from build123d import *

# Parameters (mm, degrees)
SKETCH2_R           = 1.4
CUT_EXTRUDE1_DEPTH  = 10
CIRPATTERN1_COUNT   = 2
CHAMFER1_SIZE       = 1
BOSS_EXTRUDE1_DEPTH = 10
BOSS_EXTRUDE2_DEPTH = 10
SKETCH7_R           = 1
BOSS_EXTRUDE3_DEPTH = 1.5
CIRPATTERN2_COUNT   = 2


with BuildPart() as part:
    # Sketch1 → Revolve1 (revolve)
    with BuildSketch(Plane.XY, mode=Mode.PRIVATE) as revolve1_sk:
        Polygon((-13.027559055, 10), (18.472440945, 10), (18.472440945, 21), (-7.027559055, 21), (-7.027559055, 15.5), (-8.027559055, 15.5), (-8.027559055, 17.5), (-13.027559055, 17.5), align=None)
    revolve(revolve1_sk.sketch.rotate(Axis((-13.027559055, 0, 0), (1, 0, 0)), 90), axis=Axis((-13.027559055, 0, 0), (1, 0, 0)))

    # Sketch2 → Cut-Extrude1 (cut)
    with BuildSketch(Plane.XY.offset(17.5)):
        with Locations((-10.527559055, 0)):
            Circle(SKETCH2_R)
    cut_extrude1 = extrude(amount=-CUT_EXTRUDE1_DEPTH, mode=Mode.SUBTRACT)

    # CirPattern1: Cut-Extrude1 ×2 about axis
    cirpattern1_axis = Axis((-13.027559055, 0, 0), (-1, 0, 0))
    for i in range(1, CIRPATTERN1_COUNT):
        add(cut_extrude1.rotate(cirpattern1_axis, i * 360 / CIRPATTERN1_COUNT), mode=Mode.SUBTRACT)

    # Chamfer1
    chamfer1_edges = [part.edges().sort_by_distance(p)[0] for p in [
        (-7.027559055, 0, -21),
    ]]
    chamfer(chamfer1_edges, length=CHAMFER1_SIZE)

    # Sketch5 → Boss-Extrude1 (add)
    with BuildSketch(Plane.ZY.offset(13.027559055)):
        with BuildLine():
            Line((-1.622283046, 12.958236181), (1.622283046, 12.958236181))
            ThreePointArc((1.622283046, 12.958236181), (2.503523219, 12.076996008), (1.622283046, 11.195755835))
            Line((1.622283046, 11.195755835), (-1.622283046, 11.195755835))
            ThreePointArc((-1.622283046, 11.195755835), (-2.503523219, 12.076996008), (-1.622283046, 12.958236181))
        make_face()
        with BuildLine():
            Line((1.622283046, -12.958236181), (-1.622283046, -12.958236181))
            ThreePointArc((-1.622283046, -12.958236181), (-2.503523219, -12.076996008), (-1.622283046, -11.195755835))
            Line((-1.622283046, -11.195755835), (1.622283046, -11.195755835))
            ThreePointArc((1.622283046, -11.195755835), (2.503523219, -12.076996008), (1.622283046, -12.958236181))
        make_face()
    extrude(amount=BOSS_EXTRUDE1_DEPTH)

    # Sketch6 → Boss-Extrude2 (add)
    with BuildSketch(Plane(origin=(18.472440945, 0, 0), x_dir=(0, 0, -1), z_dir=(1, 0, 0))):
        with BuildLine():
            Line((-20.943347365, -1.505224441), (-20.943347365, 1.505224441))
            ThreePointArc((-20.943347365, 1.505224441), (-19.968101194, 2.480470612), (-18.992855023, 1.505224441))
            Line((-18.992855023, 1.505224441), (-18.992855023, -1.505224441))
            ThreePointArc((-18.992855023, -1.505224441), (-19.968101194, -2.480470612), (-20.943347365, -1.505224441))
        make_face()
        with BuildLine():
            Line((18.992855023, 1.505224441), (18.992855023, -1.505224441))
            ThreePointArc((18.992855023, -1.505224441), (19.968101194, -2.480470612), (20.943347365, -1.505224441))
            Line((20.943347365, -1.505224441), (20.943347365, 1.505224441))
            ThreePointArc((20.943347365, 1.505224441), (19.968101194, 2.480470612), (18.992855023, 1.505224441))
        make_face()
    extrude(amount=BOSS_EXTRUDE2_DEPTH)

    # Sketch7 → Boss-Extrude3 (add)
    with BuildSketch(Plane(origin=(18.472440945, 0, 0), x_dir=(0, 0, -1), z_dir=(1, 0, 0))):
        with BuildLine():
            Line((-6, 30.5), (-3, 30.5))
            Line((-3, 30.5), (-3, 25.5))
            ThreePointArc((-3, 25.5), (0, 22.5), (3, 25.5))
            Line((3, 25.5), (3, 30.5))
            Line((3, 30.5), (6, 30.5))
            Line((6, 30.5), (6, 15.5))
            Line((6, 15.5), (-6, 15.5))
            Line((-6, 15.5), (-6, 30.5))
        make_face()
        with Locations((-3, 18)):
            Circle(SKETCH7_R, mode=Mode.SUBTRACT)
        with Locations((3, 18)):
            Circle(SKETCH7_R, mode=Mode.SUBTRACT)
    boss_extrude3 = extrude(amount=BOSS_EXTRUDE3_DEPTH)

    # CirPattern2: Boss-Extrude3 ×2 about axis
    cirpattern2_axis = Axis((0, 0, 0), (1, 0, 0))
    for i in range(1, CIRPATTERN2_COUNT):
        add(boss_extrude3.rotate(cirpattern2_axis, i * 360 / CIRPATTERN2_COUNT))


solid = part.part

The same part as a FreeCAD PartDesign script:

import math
import FreeCAD as App
import Part
import Sketcher
from FreeCAD import Vector


def edges_at(feature, points):
    """Names of the edges that pass closest to the given points."""
    edges = feature.Shape.Edges
    near = lambda p: min(range(len(edges)), key=lambda i: edges[i].distToShape(Part.Vertex(*p))[0])
    return sorted({f"Edge{near(p) + 1}" for p in points})

doc = App.newDocument("Part")
body = doc.addObject("PartDesign::Body", "Body")

# Sketch on XY plane
sketch1 = doc.addObject("Sketcher::SketchObject", "Sketch")
body.addObject(sketch1)
sketch1.AttachmentSupport = (doc.XY_Plane, [""])
sketch1.MapMode = "FlatFace"
sketch1.addGeometry(Part.LineSegment(Vector(-13.027559, 10, 0), Vector(18.472441, 10, 0)), False)
sketch1.addGeometry(Part.LineSegment(Vector(18.472441, 10, 0), Vector(18.472441, 21, 0)), False)
sketch1.addGeometry(Part.LineSegment(Vector(18.472441, 21, 0), Vector(-7.027559, 21, 0)), False)
sketch1.addGeometry(Part.LineSegment(Vector(-7.027559, 21, 0), Vector(-7.027559, 15.5, 0)), False)
sketch1.addGeometry(Part.LineSegment(Vector(-7.027559, 15.5, 0), Vector(-8.027559, 15.5, 0)), False)
sketch1.addGeometry(Part.LineSegment(Vector(-8.027559, 15.5, 0), Vector(-8.027559, 17.5, 0)), False)
sketch1.addGeometry(Part.LineSegment(Vector(-8.027559, 17.5, 0), Vector(-13.027559, 17.5, 0)), False)
sketch1.addGeometry(Part.LineSegment(Vector(-13.027559, 17.5, 0), Vector(-13.027559, 10, 0)), False)
sketch1.addConstraint(Sketcher.Constraint("Coincident", 0, 2, 1, 1))
sketch1.addConstraint(Sketcher.Constraint("Coincident", 1, 2, 2, 1))
sketch1.addConstraint(Sketcher.Constraint("Coincident", 2, 2, 3, 1))
sketch1.addConstraint(Sketcher.Constraint("Coincident", 3, 2, 4, 1))
sketch1.addConstraint(Sketcher.Constraint("Coincident", 4, 2, 5, 1))
sketch1.addConstraint(Sketcher.Constraint("Coincident", 5, 2, 6, 1))
sketch1.addConstraint(Sketcher.Constraint("Coincident", 6, 2, 7, 1))
sketch1.addConstraint(Sketcher.Constraint("Coincident", 7, 2, 0, 1))
sketch1.addConstraint(Sketcher.Constraint("Horizontal", 0))
sketch1.addConstraint(Sketcher.Constraint("Vertical", 1))
sketch1.addConstraint(Sketcher.Constraint("Horizontal", 2))
sketch1.addConstraint(Sketcher.Constraint("Vertical", 3))
sketch1.addConstraint(Sketcher.Constraint("Horizontal", 4))
sketch1.addConstraint(Sketcher.Constraint("Vertical", 5))
sketch1.addConstraint(Sketcher.Constraint("Horizontal", 6))
sketch1.addConstraint(Sketcher.Constraint("Vertical", 7))
sketch1.addConstraint(Sketcher.Constraint("DistanceX", 4, 2, 4, 1, 1.0))
sketch1.addConstraint(Sketcher.Constraint("DistanceX", 6, 2, 6, 1, 5.0))
sketch1.addConstraint(Sketcher.Constraint("DistanceY", 1, 1, 1, 2, 11.0))
sketch1.addConstraint(Sketcher.Constraint("DistanceY", 5, 1, 5, 2, 2.0))
sketch1.addConstraint(Sketcher.Constraint("DistanceX", 0, 1, 0, 2, 31.5))
sketch1.addConstraint(Sketcher.Constraint("DistanceY", 3, 2, 3, 1, 5.5))
sketch1.addConstraint(Sketcher.Constraint("DistanceY", -1, 1, 0, 2, 10.0))
sketch1.addConstraint(Sketcher.Constraint("DistanceX", -1, 1, 0, 2, 18.472441))
revolution = doc.addObject("PartDesign::Revolution", "Revolution")
body.addObject(revolution)
revolution.Profile = sketch1
revolution.ReferenceAxis = (sketch1, ["H_Axis"])
revolution.Angle = 360

# Sketch on XY plane
sketch2 = doc.addObject("Sketcher::SketchObject", "Sketch001")
body.addObject(sketch2)
sketch2.AttachmentSupport = (doc.XY_Plane, [""])
sketch2.MapMode = "FlatFace"
sketch2.AttachmentOffset = App.Placement(Vector(0, 0, 17.5), App.Rotation())
sketch2.addGeometry(Part.Circle(Vector(-10.527559, 0, 0), Vector(0, 0, 1), 1.4), False)
sketch2.addConstraint(Sketcher.Constraint("PointOnObject", 0, 3, -1))
sketch2.addConstraint(Sketcher.Constraint("Diameter", 0, 2.8))
sketch2.addConstraint(Sketcher.Constraint("DistanceX", 0, 3, -1, 1, 10.527559))
pocket1 = doc.addObject("PartDesign::Pocket", "Pocket")
body.addObject(pocket1)
pocket1.Profile = sketch2
pocket1.Length = 10
doc.recompute()

polarpattern = doc.addObject("PartDesign::PolarPattern", "PolarPattern")
body.addObject(polarpattern)
polarpattern.Originals = [pocket1]
polarpattern.Axis = (doc.X_Axis, [""])
polarpattern.Angle = 360
polarpattern.Occurrences = 2
body.Tip = polarpattern
doc.recompute()

chamfer = doc.addObject("PartDesign::Chamfer", "Chamfer")
body.addObject(chamfer)
chamfer.Base = (polarpattern, edges_at(polarpattern, [(-7.028, 0, -21)]))
chamfer.Size = 1

# Sketch on YZ plane
sketch3 = doc.addObject("Sketcher::SketchObject", "Sketch002")
body.addObject(sketch3)
sketch3.AttachmentSupport = (doc.YZ_Plane, [""])
sketch3.MapMode = "FlatFace"
sketch3.AttachmentOffset = App.Placement(Vector(0, 0, -13.027559), App.Rotation())
sketch3.addGeometry(Part.LineSegment(Vector(12.958236, 1.622283, 0), Vector(12.958236, -1.622283, 0)), False)
sketch3.addGeometry(Part.ArcOfCircle(Part.Circle(Vector(12.076996, -1.622283, 0), Vector(0, 0, 1), 0.88124), math.radians(180), math.radians(360)), False)
sketch3.addGeometry(Part.LineSegment(Vector(11.195756, -1.622283, 0), Vector(11.195756, 1.622283, 0)), False)
sketch3.addGeometry(Part.ArcOfCircle(Part.Circle(Vector(12.076996, 1.622283, 0), Vector(0, 0, 1), 0.88124), math.radians(0), math.radians(180)), False)
sketch3.addGeometry(Part.LineSegment(Vector(-12.958236, -1.622283, 0), Vector(-12.958236, 1.622283, 0)), False)
sketch3.addGeometry(Part.ArcOfCircle(Part.Circle(Vector(-12.076996, 1.622283, 0), Vector(0, 0, 1), 0.88124), math.radians(0), math.radians(180)), False)
sketch3.addGeometry(Part.LineSegment(Vector(-11.195756, 1.622283, 0), Vector(-11.195756, -1.622283, 0)), False)
sketch3.addGeometry(Part.ArcOfCircle(Part.Circle(Vector(-12.076996, -1.622283, 0), Vector(0, 0, 1), 0.88124), math.radians(180), math.radians(360)), False)
sketch3.addConstraint(Sketcher.Constraint("Tangent", 0, 2, 1, 2))
sketch3.addConstraint(Sketcher.Constraint("Tangent", 1, 1, 2, 1))
sketch3.addConstraint(Sketcher.Constraint("Tangent", 2, 2, 3, 2))
sketch3.addConstraint(Sketcher.Constraint("Tangent", 3, 1, 0, 1))
sketch3.addConstraint(Sketcher.Constraint("Tangent", 4, 2, 5, 2))
sketch3.addConstraint(Sketcher.Constraint("Tangent", 5, 1, 6, 1))
sketch3.addConstraint(Sketcher.Constraint("Tangent", 6, 2, 7, 2))
sketch3.addConstraint(Sketcher.Constraint("Tangent", 7, 1, 4, 1))
sketch3.addConstraint(Sketcher.Constraint("Vertical", 0))
sketch3.addConstraint(Sketcher.Constraint("Vertical", 2))
sketch3.addConstraint(Sketcher.Constraint("Vertical", 4))
sketch3.addConstraint(Sketcher.Constraint("Vertical", 6))
sketch3.addConstraint(Sketcher.Constraint("Equal", 3, 5))
sketch3.addConstraint(Sketcher.Constraint("Symmetric", 1, 3, 5, 3, -1, 1))
sketch3.addConstraint(Sketcher.Constraint("Horizontal", 3, 3, 5, 3))
sketch3.addConstraint(Sketcher.Constraint("Horizontal", 1, 3, 7, 3))
sketch3.addConstraint(Sketcher.Constraint("Radius", 1, 0.88124))
sketch3.addConstraint(Sketcher.Constraint("DistanceY", 0, 2, 0, 1, 3.244566))
sketch3.addConstraint(Sketcher.Constraint("DistanceX", 7, 3, 1, 1, 23.272752))
pad1 = doc.addObject("PartDesign::Pad", "Pad")
body.addObject(pad1)
pad1.Profile = sketch3
pad1.Length = 10
pad1.Reversed = True

# Sketch on YZ plane
sketch4 = doc.addObject("Sketcher::SketchObject", "Sketch003")
body.addObject(sketch4)
sketch4.AttachmentSupport = (doc.YZ_Plane, [""])
sketch4.MapMode = "FlatFace"
sketch4.AttachmentOffset = App.Placement(Vector(0, 0, 18.472441), App.Rotation())
sketch4.addGeometry(Part.LineSegment(Vector(1.505224, 20.943347, 0), Vector(-1.505224, 20.943347, 0)), False)
sketch4.addGeometry(Part.ArcOfCircle(Part.Circle(Vector(-1.505224, 19.968101, 0), Vector(0, 0, 1), 0.975246), math.radians(90), math.radians(270)), False)
sketch4.addGeometry(Part.LineSegment(Vector(-1.505224, 18.992855, 0), Vector(1.505224, 18.992855, 0)), False)
sketch4.addGeometry(Part.ArcOfCircle(Part.Circle(Vector(1.505224, 19.968101, 0), Vector(0, 0, 1), 0.975246), math.radians(-90), math.radians(90)), False)
sketch4.addGeometry(Part.LineSegment(Vector(1.505224, -18.992855, 0), Vector(-1.505224, -18.992855, 0)), False)
sketch4.addGeometry(Part.ArcOfCircle(Part.Circle(Vector(-1.505224, -19.968101, 0), Vector(0, 0, 1), 0.975246), math.radians(90), math.radians(270)), False)
sketch4.addGeometry(Part.LineSegment(Vector(-1.505224, -20.943347, 0), Vector(1.505224, -20.943347, 0)), False)
sketch4.addGeometry(Part.ArcOfCircle(Part.Circle(Vector(1.505224, -19.968101, 0), Vector(0, 0, 1), 0.975246), math.radians(-90), math.radians(90)), False)
sketch4.addConstraint(Sketcher.Constraint("Tangent", 0, 2, 1, 1))
sketch4.addConstraint(Sketcher.Constraint("Tangent", 1, 2, 2, 1))
sketch4.addConstraint(Sketcher.Constraint("Tangent", 2, 2, 3, 1))
sketch4.addConstraint(Sketcher.Constraint("Tangent", 3, 2, 0, 1))
sketch4.addConstraint(Sketcher.Constraint("Tangent", 4, 2, 5, 1))
sketch4.addConstraint(Sketcher.Constraint("Tangent", 5, 2, 6, 1))
sketch4.addConstraint(Sketcher.Constraint("Tangent", 6, 2, 7, 1))
sketch4.addConstraint(Sketcher.Constraint("Tangent", 7, 2, 4, 1))
sketch4.addConstraint(Sketcher.Constraint("Horizontal", 0))
sketch4.addConstraint(Sketcher.Constraint("Horizontal", 2))
sketch4.addConstraint(Sketcher.Constraint("Horizontal", 4))
sketch4.addConstraint(Sketcher.Constraint("Horizontal", 6))
sketch4.addConstraint(Sketcher.Constraint("Equal", 3, 5))
sketch4.addConstraint(Sketcher.Constraint("Symmetric", 3, 3, 5, 3, -1, 1))
sketch4.addConstraint(Sketcher.Constraint("Vertical", 1, 3, 5, 3))
sketch4.addConstraint(Sketcher.Constraint("Vertical", 3, 3, 7, 3))
sketch4.addConstraint(Sketcher.Constraint("Radius", 1, 0.975246))
sketch4.addConstraint(Sketcher.Constraint("DistanceX", 0, 2, 0, 1, 3.010449))
sketch4.addConstraint(Sketcher.Constraint("DistanceY", -1, 1, 1, 3, 19.968101))
pad2 = doc.addObject("PartDesign::Pad", "Pad001")
body.addObject(pad2)
pad2.Profile = sketch4
pad2.Length = 10

# Sketch on YZ plane
sketch5 = doc.addObject("Sketcher::SketchObject", "Sketch004")
body.addObject(sketch5)
sketch5.AttachmentSupport = (doc.YZ_Plane, [""])
sketch5.MapMode = "FlatFace"
sketch5.AttachmentOffset = App.Placement(Vector(0, 0, 18.472441), App.Rotation())
sketch5.addGeometry(Part.LineSegment(Vector(30.5, 3, 0), Vector(30.5, 6, 0)), False)
sketch5.addGeometry(Part.LineSegment(Vector(30.5, 6, 0), Vector(15.5, 6, 0)), False)
sketch5.addGeometry(Part.LineSegment(Vector(15.5, 6, 0), Vector(15.5, -6, 0)), False)
sketch5.addGeometry(Part.LineSegment(Vector(15.5, -6, 0), Vector(30.5, -6, 0)), False)
sketch5.addGeometry(Part.LineSegment(Vector(30.5, -6, 0), Vector(30.5, -3, 0)), False)
sketch5.addGeometry(Part.LineSegment(Vector(30.5, -3, 0), Vector(25.5, -3, 0)), False)
sketch5.addGeometry(Part.ArcOfCircle(Part.Circle(Vector(25.5, 0, 0), Vector(0, 0, 1), 3), math.radians(90), math.radians(270)), False)
sketch5.addGeometry(Part.LineSegment(Vector(25.5, 3, 0), Vector(30.5, 3, 0)), False)
sketch5.addGeometry(Part.Circle(Vector(18, -3, 0), Vector(0, 0, 1), 1), False)
sketch5.addGeometry(Part.Circle(Vector(18, 3, 0), Vector(0, 0, 1), 1), False)
sketch5.addConstraint(Sketcher.Constraint("Coincident", 0, 2, 1, 1))
sketch5.addConstraint(Sketcher.Constraint("Coincident", 1, 2, 2, 1))
sketch5.addConstraint(Sketcher.Constraint("Coincident", 2, 2, 3, 1))
sketch5.addConstraint(Sketcher.Constraint("Coincident", 3, 2, 4, 1))
sketch5.addConstraint(Sketcher.Constraint("Coincident", 4, 2, 5, 1))
sketch5.addConstraint(Sketcher.Constraint("Tangent", 5, 2, 6, 2))
sketch5.addConstraint(Sketcher.Constraint("Tangent", 6, 1, 7, 1))
sketch5.addConstraint(Sketcher.Constraint("Coincident", 7, 2, 0, 1))
sketch5.addConstraint(Sketcher.Constraint("Vertical", 0))
sketch5.addConstraint(Sketcher.Constraint("Horizontal", 1))
sketch5.addConstraint(Sketcher.Constraint("Vertical", 2))
sketch5.addConstraint(Sketcher.Constraint("Horizontal", 3))
sketch5.addConstraint(Sketcher.Constraint("Vertical", 4))
sketch5.addConstraint(Sketcher.Constraint("Horizontal", 5))
sketch5.addConstraint(Sketcher.Constraint("Horizontal", 7))
sketch5.addConstraint(Sketcher.Constraint("Equal", 8, 9))
sketch5.addConstraint(Sketcher.Constraint("Symmetric", 8, 3, 9, 3, -1))
sketch5.addConstraint(Sketcher.Constraint("Symmetric", 0, 2, 3, 2, -1))
sketch5.addConstraint(Sketcher.Constraint("PointOnObject", 6, 3, -1))
sketch5.addConstraint(Sketcher.Constraint("Horizontal", 8, 3, 4, 2))
sketch5.addConstraint(Sketcher.Constraint("Diameter", 8, 2.0))
sketch5.addConstraint(Sketcher.Constraint("Radius", 6, 3.0))
sketch5.addConstraint(Sketcher.Constraint("DistanceX", 1, 2, 1, 1, 15.0))
sketch5.addConstraint(Sketcher.Constraint("DistanceX", 5, 2, 5, 1, 5.0))
sketch5.addConstraint(Sketcher.Constraint("DistanceY", 0, 1, 0, 2, 3.0))
sketch5.addConstraint(Sketcher.Constraint("DistanceX", -1, 1, 8, 3, 18.0))
sketch5.addConstraint(Sketcher.Constraint("DistanceX", -1, 1, 6, 3, 25.5))
pad3 = doc.addObject("PartDesign::Pad", "Pad002")
body.addObject(pad3)
pad3.Profile = sketch5
pad3.Length = 1.5
doc.recompute()

polarpattern2 = doc.addObject("PartDesign::PolarPattern", "PolarPattern001")
body.addObject(polarpattern2)
polarpattern2.Originals = [pad3]
polarpattern2.Axis = (doc.X_Axis, [""])
polarpattern2.Angle = 360
polarpattern2.Occurrences = 2
body.Tip = polarpattern2

doc.recompute()
